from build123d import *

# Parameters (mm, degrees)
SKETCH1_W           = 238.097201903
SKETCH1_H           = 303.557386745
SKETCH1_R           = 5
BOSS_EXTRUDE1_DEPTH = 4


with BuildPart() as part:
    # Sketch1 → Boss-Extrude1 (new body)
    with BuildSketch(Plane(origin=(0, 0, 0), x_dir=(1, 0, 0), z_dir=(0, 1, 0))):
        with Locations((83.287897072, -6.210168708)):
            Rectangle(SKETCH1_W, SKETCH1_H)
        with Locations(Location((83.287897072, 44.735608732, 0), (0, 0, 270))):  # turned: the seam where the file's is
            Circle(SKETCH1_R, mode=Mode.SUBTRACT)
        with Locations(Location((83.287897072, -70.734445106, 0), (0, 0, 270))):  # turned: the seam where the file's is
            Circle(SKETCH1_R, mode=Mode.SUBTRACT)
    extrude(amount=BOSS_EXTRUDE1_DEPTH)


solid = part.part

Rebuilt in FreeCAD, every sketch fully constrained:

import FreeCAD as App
import Part
import Sketcher

V = App.Vector


def add_polygon(sketch, points):
    """Adds a closed chain of lines whose ends are joined by coincident constraints."""
    first, n = sketch.GeometryCount, len(points)
    for a, b in zip(points, points[1:] + points[:1]):
        sketch.addGeometry(Part.LineSegment(App.Vector(*a, 0), App.Vector(*b, 0)), False)
    for i in range(n):
        sketch.addConstraint(Sketcher.Constraint("Coincident", first + i, 2, first + (i + 1) % n, 1))

doc = App.newDocument("Part")
body = doc.addObject("PartDesign::Body", "Body")

sketch1 = body.newObject("Sketcher::SketchObject", "Sketch")
sketch1.AttachmentSupport = (doc.getObject("XZ_Plane"), [""])
sketch1.MapMode = "FlatFace"
add_polygon(sketch1, [(-36, -146), (-36, 158), (202, 158), (202, -146)])
sketch1.addGeometry(Part.Circle(V(83, 71, 0), V(0, 0, 1), 5), False)
sketch1.addGeometry(Part.Circle(V(83, -45, 0), V(0, 0, 1), 5), False)
sketch1.addConstraint(Sketcher.Constraint("Vertical", 0))
sketch1.addConstraint(Sketcher.Constraint("Horizontal", 1))
sketch1.addConstraint(Sketcher.Constraint("Vertical", 2))
sketch1.addConstraint(Sketcher.Constraint("Horizontal", 3))
sketch1.addConstraint(Sketcher.Constraint("Equal", 4, 5))
sketch1.addConstraint(Sketcher.Constraint("Vertical", 4, 3, 5, 3))
sketch1.addConstraint(Sketcher.Constraint("Diameter", 4, 10.0))
sketch1.addConstraint(Sketcher.Constraint("DistanceX", 1, 1, 1, 2, 238.097202))
sketch1.addConstraint(Sketcher.Constraint("DistanceX", -1, 1, 1, 2, 202.336498))
sketch1.addConstraint(Sketcher.Constraint("DistanceX", 0, 2, 4, 3, 119.048601))
sketch1.addConstraint(Sketcher.Constraint("DistanceY", 0, 1, 0, 2, 303.557387))
sketch1.addConstraint(Sketcher.Constraint("DistanceY", 5, 3, -1, 1, 44.735609))
sketch1.addConstraint(Sketcher.Constraint("DistanceY", 5, 3, 0, 2, 202.724471))
sketch1.addConstraint(Sketcher.Constraint("DistanceY", 2, 2, 4, 3, 216.30297))
pad1 = body.newObject("PartDesign::Pad", "Pad")
pad1.Profile = sketch1
pad1.Length = 4
pad1.Reversed = True

doc.recompute()
